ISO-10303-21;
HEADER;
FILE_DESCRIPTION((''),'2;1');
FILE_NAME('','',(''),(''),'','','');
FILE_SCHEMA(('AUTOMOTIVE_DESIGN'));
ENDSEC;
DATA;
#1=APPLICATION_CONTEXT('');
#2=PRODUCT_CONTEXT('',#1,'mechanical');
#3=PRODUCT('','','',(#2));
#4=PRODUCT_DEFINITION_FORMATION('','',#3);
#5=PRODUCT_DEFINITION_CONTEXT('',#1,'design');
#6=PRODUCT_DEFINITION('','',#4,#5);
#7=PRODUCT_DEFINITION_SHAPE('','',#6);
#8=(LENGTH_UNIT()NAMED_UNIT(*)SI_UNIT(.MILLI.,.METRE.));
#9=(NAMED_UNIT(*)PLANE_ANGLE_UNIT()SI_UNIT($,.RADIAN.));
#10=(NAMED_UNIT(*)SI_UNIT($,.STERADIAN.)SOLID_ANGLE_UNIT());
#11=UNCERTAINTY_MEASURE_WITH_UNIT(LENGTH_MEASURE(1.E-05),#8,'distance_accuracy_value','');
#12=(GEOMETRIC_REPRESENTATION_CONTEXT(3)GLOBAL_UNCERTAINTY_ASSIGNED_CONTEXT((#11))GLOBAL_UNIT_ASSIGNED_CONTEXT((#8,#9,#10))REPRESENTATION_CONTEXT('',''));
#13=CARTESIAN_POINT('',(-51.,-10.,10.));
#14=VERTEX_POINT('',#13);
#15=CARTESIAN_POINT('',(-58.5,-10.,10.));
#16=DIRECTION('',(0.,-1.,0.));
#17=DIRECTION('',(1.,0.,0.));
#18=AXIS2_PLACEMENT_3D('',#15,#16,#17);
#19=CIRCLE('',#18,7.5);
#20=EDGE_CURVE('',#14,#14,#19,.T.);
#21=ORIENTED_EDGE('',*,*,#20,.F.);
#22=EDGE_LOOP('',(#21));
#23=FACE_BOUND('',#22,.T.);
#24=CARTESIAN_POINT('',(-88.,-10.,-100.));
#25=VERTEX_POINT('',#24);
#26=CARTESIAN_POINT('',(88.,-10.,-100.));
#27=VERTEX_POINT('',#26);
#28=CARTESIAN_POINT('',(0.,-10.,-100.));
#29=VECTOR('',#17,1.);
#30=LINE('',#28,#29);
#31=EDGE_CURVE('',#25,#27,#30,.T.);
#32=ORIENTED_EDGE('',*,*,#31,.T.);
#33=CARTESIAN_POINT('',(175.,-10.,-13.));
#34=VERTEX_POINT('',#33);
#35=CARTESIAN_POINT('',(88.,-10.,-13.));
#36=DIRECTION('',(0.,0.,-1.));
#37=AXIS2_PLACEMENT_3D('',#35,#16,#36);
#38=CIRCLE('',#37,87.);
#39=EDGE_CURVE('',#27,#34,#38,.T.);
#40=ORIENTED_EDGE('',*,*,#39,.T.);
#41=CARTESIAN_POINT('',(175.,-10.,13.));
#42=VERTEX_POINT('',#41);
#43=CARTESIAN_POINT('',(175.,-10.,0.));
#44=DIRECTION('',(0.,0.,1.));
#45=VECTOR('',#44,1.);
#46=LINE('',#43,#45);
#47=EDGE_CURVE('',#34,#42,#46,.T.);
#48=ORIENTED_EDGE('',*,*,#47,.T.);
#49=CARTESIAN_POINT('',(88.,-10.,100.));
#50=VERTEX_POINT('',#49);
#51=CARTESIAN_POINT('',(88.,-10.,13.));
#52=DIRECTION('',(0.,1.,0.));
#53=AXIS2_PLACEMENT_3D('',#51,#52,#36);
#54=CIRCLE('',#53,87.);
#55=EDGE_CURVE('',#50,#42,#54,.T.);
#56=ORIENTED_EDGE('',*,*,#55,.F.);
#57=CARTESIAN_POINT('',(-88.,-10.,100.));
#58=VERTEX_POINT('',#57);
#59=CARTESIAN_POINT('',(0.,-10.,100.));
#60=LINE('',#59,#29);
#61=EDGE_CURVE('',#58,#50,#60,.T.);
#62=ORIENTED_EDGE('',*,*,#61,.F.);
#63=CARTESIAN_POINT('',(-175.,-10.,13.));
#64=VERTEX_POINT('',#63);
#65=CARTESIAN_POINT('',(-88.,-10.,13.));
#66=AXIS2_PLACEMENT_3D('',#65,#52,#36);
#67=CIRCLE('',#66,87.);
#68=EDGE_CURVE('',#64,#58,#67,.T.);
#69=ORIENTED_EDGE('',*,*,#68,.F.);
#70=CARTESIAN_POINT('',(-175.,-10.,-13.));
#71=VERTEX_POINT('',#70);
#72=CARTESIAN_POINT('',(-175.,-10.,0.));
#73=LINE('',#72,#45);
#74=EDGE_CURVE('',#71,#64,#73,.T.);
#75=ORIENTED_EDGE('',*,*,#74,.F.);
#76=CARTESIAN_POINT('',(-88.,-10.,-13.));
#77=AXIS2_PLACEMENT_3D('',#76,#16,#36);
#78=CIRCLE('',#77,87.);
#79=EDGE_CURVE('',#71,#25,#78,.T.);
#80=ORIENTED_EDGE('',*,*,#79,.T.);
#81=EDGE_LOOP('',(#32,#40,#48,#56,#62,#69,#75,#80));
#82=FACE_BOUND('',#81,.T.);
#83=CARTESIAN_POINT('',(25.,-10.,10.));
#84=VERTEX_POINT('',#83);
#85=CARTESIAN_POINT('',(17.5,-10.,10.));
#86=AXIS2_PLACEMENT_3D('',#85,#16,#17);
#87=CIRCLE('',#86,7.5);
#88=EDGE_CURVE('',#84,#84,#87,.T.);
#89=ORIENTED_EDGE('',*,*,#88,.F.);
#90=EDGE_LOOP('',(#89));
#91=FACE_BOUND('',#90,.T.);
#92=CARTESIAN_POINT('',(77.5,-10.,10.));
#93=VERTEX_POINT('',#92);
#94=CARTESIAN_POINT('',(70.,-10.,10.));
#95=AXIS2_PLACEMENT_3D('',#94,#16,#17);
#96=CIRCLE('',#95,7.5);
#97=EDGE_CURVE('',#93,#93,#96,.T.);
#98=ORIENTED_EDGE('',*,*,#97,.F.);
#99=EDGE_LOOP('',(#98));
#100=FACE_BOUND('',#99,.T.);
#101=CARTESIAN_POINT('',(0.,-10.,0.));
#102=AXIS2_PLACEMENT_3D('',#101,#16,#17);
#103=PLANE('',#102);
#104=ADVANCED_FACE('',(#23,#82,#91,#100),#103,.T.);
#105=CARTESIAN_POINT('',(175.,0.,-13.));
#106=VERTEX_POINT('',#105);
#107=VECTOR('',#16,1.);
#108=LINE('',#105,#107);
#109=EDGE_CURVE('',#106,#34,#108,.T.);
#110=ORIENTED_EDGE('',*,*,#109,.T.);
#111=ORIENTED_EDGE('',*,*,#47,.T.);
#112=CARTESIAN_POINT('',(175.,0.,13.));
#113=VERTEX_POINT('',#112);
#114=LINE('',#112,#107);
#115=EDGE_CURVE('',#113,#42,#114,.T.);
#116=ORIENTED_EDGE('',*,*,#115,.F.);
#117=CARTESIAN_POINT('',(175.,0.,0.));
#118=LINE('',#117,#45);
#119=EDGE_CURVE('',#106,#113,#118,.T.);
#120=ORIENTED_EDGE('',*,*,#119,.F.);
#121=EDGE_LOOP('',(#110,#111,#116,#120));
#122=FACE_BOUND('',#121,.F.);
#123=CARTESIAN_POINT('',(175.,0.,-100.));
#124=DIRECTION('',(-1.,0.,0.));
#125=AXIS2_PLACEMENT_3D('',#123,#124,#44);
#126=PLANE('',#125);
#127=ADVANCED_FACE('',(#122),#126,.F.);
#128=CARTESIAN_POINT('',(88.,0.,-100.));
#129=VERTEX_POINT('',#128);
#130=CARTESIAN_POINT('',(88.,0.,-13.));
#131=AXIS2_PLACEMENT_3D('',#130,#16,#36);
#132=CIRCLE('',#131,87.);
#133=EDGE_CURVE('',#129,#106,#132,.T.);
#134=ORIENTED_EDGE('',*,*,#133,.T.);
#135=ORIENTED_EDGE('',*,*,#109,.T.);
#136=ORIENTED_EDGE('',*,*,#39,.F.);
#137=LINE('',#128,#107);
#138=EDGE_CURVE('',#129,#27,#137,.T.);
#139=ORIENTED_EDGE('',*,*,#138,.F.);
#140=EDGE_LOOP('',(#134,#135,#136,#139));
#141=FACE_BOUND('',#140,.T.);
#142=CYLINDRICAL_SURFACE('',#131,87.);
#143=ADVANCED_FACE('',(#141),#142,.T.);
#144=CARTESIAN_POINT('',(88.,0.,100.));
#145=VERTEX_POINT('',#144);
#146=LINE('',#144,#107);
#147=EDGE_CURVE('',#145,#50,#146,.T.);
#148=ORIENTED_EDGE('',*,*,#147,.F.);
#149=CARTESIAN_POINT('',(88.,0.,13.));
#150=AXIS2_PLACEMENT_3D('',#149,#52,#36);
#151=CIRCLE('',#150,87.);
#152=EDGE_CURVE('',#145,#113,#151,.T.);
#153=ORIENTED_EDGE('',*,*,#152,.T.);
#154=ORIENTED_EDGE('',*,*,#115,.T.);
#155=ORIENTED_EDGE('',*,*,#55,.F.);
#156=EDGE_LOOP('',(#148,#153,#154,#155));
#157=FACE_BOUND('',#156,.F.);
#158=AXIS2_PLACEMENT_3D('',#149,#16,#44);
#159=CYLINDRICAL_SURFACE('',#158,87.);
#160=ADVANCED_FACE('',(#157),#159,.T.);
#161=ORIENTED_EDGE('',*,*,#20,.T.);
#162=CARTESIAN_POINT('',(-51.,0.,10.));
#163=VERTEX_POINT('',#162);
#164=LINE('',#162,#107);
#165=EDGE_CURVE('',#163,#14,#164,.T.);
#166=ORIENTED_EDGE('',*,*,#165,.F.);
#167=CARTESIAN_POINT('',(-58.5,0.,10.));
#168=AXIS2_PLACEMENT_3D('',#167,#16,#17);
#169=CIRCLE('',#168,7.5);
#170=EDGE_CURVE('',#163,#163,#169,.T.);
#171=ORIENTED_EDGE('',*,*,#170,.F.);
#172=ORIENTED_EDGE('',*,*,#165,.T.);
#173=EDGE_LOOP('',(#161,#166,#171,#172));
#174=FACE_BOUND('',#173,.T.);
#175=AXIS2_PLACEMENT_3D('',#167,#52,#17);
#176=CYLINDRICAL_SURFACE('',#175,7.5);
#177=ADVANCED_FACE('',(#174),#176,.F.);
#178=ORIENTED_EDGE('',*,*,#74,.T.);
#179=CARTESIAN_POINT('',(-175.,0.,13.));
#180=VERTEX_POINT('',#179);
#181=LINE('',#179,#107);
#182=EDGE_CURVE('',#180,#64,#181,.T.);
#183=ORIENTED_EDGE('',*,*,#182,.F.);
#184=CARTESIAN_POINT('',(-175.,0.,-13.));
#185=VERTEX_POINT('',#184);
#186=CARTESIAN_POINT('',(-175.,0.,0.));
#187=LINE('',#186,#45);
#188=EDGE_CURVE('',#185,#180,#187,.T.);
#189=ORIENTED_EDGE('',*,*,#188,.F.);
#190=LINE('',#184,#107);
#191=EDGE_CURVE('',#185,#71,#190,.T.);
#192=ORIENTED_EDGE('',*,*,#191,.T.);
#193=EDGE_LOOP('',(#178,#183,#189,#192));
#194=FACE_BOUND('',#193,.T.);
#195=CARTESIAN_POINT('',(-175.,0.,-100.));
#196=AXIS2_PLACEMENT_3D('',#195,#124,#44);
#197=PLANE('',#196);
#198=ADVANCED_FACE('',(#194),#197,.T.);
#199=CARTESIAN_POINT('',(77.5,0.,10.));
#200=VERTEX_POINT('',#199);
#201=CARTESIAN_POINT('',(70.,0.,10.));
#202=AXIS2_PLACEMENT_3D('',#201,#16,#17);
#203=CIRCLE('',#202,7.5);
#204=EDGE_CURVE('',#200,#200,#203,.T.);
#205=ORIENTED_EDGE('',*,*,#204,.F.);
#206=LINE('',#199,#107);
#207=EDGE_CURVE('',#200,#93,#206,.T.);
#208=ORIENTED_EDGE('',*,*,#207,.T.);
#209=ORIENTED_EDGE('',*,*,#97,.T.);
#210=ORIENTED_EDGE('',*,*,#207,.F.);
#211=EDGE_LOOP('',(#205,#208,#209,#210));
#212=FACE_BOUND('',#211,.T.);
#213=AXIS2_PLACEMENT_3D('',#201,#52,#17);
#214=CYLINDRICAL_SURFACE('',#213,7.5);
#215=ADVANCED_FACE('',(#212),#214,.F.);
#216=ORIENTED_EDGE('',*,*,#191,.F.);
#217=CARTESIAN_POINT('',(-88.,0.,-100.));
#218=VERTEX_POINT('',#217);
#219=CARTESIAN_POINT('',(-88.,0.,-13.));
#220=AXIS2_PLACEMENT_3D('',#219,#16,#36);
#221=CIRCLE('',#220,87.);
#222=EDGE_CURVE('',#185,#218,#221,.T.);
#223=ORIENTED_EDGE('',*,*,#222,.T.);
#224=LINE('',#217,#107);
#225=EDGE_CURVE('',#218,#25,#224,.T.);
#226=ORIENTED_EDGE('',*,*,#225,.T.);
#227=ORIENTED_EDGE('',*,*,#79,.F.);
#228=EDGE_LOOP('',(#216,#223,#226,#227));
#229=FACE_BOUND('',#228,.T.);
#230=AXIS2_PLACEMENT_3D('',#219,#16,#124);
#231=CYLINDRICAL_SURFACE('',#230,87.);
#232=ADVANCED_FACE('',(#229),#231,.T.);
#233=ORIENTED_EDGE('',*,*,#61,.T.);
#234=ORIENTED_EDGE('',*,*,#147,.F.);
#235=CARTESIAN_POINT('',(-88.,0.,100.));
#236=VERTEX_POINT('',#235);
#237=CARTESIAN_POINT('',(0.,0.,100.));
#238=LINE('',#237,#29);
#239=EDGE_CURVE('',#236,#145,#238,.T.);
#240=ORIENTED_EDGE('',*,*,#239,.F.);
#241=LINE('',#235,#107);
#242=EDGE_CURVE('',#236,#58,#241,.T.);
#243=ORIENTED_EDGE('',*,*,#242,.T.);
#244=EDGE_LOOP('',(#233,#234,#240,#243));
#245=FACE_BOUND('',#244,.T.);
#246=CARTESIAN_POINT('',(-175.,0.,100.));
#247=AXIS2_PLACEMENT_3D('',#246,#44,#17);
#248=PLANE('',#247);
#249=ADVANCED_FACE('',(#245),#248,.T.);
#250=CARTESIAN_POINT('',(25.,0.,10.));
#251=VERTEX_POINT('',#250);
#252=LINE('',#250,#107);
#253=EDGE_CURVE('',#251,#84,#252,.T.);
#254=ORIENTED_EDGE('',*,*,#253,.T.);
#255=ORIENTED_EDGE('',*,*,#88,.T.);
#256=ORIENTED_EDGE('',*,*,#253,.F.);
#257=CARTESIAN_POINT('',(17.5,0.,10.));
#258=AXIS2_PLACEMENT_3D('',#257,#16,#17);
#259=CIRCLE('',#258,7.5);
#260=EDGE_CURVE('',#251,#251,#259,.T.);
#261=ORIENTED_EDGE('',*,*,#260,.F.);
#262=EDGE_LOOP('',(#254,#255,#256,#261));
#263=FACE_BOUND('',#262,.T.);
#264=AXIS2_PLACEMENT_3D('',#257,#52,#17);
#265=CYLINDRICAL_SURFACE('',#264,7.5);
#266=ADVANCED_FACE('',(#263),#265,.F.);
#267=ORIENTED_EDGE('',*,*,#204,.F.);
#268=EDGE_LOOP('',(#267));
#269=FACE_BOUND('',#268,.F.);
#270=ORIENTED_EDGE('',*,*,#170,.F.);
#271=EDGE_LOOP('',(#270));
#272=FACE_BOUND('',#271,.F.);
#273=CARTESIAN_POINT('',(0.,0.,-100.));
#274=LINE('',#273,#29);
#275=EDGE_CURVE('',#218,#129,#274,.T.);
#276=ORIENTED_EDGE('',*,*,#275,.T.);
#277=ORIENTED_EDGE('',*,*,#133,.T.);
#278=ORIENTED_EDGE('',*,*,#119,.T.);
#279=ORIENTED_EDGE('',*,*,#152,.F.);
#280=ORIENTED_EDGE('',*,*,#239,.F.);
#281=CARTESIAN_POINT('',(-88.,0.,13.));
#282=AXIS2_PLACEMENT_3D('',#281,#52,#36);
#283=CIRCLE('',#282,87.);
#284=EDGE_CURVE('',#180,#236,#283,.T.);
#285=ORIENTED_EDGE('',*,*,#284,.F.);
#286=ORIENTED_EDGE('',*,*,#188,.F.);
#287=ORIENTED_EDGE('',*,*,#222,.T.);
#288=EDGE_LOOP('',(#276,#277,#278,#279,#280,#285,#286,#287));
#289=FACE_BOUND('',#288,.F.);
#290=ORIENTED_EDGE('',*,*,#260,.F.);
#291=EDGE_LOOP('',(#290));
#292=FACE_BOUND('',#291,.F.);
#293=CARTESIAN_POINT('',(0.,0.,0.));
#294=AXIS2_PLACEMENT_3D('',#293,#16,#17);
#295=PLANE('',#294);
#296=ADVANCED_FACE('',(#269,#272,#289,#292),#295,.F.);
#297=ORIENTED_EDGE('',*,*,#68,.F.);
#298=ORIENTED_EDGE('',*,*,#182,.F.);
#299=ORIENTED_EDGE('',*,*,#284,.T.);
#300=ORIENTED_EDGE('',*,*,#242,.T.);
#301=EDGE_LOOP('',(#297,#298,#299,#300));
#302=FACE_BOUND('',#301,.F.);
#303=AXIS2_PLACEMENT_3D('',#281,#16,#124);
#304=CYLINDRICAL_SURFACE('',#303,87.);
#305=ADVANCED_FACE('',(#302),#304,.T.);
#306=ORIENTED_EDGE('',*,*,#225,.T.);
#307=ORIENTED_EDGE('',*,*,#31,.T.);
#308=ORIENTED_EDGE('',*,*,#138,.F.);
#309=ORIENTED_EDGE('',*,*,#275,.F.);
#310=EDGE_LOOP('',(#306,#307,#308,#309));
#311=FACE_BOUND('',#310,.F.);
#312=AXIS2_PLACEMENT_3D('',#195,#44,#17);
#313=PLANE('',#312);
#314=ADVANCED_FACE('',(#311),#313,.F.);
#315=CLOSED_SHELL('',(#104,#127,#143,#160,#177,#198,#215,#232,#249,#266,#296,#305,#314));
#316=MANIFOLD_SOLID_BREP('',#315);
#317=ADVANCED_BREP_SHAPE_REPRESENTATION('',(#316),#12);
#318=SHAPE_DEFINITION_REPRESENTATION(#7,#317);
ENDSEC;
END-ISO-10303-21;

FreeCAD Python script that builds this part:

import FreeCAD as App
import Part
import Sketcher
Q = App.Units.Quantity


def edges_at(feature, points):
    """Names of the edges that pass closest to the given points."""
    edges = feature.Shape.Edges
    near = lambda p: min(range(len(edges)), key=lambda i: edges[i].distToShape(Part.Vertex(*p))[0])
    return sorted({f"Edge{near(p) + 1}" for p in points})


def add_polygon(sketch, points):
    """Adds a closed chain of lines whose ends are joined by coincident constraints."""
    first, n = sketch.GeometryCount, len(points)
    for a, b in zip(points, points[1:] + points[:1]):
        sketch.addGeometry(Part.LineSegment(App.Vector(*a, 0), App.Vector(*b, 0)), False)
    for i in range(n):
        sketch.addConstraint(Sketcher.Constraint("Coincident", first + i, 2, first + (i + 1) % n, 1))

doc = App.newDocument("Part")
body = doc.addObject("PartDesign::Body", "Body")

sketch1 = doc.addObject("Sketcher::SketchObject", "Sketch")
body.addObject(sketch1)
sketch1.AttachmentSupport = (doc.XZ_Plane, [""])
sketch1.MapMode = "FlatFace"
add_polygon(sketch1, [(-175, 100), (-175, -100), (175, -100), (175, 100)])
sketch1.addGeometry(Part.Circle(App.Vector(-58, 10, 0), App.Vector(0, 0, 1), 8), False)
sketch1.addGeometry(Part.Circle(App.Vector(18, 10, 0), App.Vector(0, 0, 1), 8), False)
sketch1.addGeometry(Part.Circle(App.Vector(70, 10, 0), App.Vector(0, 0, 1), 8), False)
sketch1.addConstraint(Sketcher.Constraint("Vertical", 0))
sketch1.addConstraint(Sketcher.Constraint("Horizontal", 1))
sketch1.addConstraint(Sketcher.Constraint("Vertical", 2))
sketch1.addConstraint(Sketcher.Constraint("Horizontal", 3))
sketch1.addConstraint(Sketcher.Constraint("Equal", 4, 5))
sketch1.addConstraint(Sketcher.Constraint("Equal", 5, 6))
sketch1.addConstraint(Sketcher.Constraint("Symmetric", 0, 2, 2, 2, -1, 1))
sketch1.addConstraint(Sketcher.Constraint("Horizontal", 4, 3, 5, 3))
sketch1.addConstraint(Sketcher.Constraint("Horizontal", 5, 3, 6, 3))
sketch1.addConstraint(Sketcher.Constraint("Diameter", 4, Q("15 mm")))
sketch1.addConstraint(Sketcher.Constraint("DistanceX", 1, 1, 1, 2, Q("350 mm")))
sketch1.addConstraint(Sketcher.Constraint("DistanceY", 0, 2, 0, 1, Q("200 mm")))
sketch1.addConstraint(Sketcher.Constraint("DistanceY", -1, 1, 4, 3, Q("10 mm")))
sketch1.addConstraint(Sketcher.Constraint("DistanceX", -1, 1, 6, 3, Q("70 mm")))
sketch1.addConstraint(Sketcher.Constraint("DistanceX", 4, 3, 5, 3, Q("76 mm")))
sketch1.addConstraint(Sketcher.Constraint("DistanceX", 4, 3, -1, 1, Q("58.5 mm")))
pad1 = doc.addObject("PartDesign::Pad", "Pad")
body.addObject(pad1)
pad1.Profile = sketch1
pad1.Length = 10
doc.recompute()

fillet = doc.addObject("PartDesign::Fillet", "Fillet")
body.addObject(fillet)
fillet.Base = (pad1, edges_at(pad1, [
    (175, -5, 100),
    (-175, -5, 100),
    (-175, -5, -100),
    (175, -5, -100),
]))
fillet.Radius = 87

doc.recompute()
